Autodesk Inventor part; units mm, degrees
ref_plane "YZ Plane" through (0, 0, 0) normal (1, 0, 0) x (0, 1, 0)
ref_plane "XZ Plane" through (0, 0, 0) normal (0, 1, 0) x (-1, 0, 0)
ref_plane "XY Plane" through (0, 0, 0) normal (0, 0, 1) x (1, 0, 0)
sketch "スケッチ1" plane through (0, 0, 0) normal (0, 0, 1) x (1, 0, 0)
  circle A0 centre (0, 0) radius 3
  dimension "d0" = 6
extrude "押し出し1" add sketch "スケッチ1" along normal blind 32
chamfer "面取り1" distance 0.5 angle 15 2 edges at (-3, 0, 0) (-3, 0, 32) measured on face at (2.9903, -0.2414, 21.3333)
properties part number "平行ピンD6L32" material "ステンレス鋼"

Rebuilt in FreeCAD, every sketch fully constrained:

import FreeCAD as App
import Part
import Sketcher
from FreeCAD import Vector


def edges_at(feature, points):
    """Names of the edges that pass closest to the given points."""
    edges = feature.Shape.Edges
    near = lambda p: min(range(len(edges)), key=lambda i: edges[i].distToShape(Part.Vertex(*p))[0])
    return sorted({f"Edge{near(p) + 1}" for p in points})

doc = App.newDocument("Part")
body = doc.addObject("PartDesign::Body", "Body")

# Sketch on XY plane
sketch1 = doc.addObject("Sketcher::SketchObject", "Sketch")
body.addObject(sketch1)
sketch1.AttachmentSupport = (doc.XY_Plane, [""])
sketch1.MapMode = "FlatFace"
sketch1.addGeometry(Part.Circle(Vector(0, 0, 0), Vector(0, 0, 1), 3), False)
sketch1.addConstraint([
    Sketcher.Constraint("Coincident", 0, 3, -1, 1),
    Sketcher.Constraint("Diameter", 0, 6.0),
])
pad1 = doc.addObject("PartDesign::Pad", "Pad")
body.addObject(pad1)
pad1.Profile = sketch1
pad1.Length = 32
doc.recompute()

chamfer = doc.addObject("PartDesign::Chamfer", "Chamfer")
body.addObject(chamfer)
chamfer.Base = (pad1, edges_at(pad1, [(-3, 0, 0), (-3, 0, 32)]))
chamfer.ChamferType = "Distance and Angle"
chamfer.Size = 0.5
chamfer.Angle = 15

doc.recompute()
